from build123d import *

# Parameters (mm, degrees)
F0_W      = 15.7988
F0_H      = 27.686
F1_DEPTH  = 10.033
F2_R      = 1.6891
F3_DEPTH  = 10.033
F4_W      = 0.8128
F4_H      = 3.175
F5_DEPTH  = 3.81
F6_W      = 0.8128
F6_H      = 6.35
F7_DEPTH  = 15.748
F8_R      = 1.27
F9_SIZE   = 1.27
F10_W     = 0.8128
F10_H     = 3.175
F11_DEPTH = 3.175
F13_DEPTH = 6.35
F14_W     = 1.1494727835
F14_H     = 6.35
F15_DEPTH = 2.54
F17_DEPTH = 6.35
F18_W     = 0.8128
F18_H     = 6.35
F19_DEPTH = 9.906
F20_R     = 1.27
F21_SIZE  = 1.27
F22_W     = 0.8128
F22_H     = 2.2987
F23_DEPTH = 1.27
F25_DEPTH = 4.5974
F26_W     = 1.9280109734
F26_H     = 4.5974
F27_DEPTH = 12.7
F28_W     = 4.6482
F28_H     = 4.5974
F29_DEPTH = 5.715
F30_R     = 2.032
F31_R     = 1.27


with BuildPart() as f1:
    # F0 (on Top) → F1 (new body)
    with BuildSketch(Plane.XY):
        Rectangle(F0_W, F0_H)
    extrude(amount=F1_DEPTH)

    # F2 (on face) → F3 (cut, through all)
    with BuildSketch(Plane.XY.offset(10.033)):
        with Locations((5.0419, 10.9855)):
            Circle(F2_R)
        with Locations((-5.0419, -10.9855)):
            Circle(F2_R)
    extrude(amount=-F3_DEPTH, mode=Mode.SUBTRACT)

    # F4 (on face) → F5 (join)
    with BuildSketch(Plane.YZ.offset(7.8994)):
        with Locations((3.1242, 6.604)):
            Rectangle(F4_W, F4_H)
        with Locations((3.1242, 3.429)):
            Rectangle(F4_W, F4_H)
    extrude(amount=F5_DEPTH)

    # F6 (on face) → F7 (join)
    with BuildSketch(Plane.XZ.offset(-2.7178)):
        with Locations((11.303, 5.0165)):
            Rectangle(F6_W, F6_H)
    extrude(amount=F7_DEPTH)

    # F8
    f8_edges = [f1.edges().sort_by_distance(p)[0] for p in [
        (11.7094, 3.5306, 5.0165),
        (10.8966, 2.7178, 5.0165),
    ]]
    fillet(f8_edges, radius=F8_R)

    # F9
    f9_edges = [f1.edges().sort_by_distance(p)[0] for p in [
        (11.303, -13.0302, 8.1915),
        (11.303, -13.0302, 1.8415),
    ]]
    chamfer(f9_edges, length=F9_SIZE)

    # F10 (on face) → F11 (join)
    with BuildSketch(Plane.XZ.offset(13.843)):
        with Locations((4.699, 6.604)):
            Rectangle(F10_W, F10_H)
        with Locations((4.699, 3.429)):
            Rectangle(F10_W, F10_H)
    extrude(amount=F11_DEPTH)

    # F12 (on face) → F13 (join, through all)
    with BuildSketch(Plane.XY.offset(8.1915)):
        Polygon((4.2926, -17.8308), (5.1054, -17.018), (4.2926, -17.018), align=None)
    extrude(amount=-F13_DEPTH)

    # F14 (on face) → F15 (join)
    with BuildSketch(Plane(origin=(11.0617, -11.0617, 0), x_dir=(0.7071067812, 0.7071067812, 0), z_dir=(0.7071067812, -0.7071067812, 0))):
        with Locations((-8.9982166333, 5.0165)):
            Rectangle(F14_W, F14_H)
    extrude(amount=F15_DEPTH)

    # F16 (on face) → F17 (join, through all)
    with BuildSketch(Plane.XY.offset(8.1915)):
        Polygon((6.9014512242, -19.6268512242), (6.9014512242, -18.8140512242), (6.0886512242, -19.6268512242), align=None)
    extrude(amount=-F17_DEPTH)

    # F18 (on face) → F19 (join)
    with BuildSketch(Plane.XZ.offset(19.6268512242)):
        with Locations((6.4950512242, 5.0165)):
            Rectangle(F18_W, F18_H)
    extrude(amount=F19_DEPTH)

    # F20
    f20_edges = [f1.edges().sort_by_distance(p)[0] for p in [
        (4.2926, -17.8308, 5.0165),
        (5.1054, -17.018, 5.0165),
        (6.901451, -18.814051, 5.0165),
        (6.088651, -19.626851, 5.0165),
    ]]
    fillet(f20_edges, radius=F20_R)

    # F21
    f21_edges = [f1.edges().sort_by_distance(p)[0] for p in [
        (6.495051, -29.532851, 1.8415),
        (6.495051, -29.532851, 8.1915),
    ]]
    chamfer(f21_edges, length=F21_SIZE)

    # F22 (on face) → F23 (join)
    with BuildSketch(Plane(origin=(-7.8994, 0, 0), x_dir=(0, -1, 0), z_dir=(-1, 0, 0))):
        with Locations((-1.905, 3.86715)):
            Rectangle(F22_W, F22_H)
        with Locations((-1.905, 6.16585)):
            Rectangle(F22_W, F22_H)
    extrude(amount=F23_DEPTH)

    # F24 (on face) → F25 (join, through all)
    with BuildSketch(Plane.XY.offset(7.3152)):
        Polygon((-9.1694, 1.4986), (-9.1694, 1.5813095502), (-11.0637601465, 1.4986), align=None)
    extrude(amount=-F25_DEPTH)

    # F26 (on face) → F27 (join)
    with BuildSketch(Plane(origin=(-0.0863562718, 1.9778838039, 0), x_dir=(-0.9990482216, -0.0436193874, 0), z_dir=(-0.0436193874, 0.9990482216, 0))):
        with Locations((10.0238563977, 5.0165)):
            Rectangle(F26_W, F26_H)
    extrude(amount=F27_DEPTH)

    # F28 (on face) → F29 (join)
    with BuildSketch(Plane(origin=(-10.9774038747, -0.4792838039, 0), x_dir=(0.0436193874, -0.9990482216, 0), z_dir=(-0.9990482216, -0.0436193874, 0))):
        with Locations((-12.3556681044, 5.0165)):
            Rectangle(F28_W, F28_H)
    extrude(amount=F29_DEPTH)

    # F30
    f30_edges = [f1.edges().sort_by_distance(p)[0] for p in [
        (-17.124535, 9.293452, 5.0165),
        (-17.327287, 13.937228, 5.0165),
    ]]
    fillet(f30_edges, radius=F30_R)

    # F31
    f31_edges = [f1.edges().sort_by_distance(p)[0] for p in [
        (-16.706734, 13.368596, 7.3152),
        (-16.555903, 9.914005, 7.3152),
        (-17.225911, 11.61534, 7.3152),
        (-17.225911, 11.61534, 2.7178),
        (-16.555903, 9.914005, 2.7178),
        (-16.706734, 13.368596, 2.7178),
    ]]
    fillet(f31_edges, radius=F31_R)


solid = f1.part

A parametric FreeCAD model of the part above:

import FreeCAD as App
import Part
import Sketcher
Q = App.Units.Quantity


def edges_at(feature, points):
    """Names of the edges that pass closest to the given points."""
    edges = feature.Shape.Edges
    near = lambda p: min(range(len(edges)), key=lambda i: edges[i].distToShape(Part.Vertex(*p))[0])
    return sorted({f"Edge{near(p) + 1}" for p in points})

doc = App.newDocument("Part")
params = doc.addObject("Spreadsheet::Sheet", "Params")
for row, (alias, value) in enumerate([
    ("sketch1_height", "1.09 in"),
    ("sketch1_width", "0.622 in"),
    ("pad1_length", "0.395 in"),
    ("sketch2_diameter", "0.133 in"),
    ("sketch3_height", "0.25 in"),
    ("sketch3_width", "0.032 in"),
    ("pad2_length", "0.15 in"),
    ("sketch4_height", "0.25 in"),
    ("sketch4_width", "0.032 in"),
    ("pad3_length", "0.62 in"),
    ("fillet_radius", "0.05 in"),
    ("chamfer_size", "0.05 in"),
    ("sketch5_height", "0.25 in"),
    ("sketch5_width", "0.032 in"),
    ("pad4_length", "0.125 in"),
    ("sketch6_width", "0.032 in"),
    ("pad5_length", "0.25 in"),
    ("sketch7_height", "0.25 in"),
    ("pad6_length", "0.1 in"),
    ("sketch8_width", "0.032 in"),
    ("pad7_length", "0.25 in"),
    ("sketch9_height", "0.25 in"),
    ("sketch9_width", "0.032 in"),
    ("pad8_length", "0.39 in"),
    ("fillet2_radius", "0.05 in"),
    ("chamfer2_size", "0.05 in"),
    ("sketch10_width", "0.032 in"),
    ("sketch10_height", "0.181 in"),
    ("pad9_length", "0.05 in"),
    ("pad10_length", "0.181 in"),
    ("sketch12_height", "0.181 in"),
    ("pad11_length", "0.5 in"),
    ("sketch13_width", "0.183 in"),
    ("sketch13_height", "0.181 in"),
    ("pad12_length", "0.225 in"),
    ("fillet3_radius", "0.08 in"),
    ("fillet4_radius", "0.05 in"),
], start=1):
    params.set(f"A{row}", alias)
    params.set(f"B{row}", "=" + value)
    params.setAlias(f"B{row}", alias)

body = doc.addObject("PartDesign::Body", "Body")

sketch1 = body.newObject("Sketcher::SketchObject", "Sketch")
sketch1.AttachmentSupport = (doc.getObject("XY_Plane"), [""])
sketch1.MapMode = "FlatFace"
sketch1.addGeometry([
    Part.LineSegment(App.Vector(-8, 14, 0), App.Vector(-8, -14, 0)),
    Part.LineSegment(App.Vector(-8, -14, 0), App.Vector(8, -14, 0)),
    Part.LineSegment(App.Vector(8, -14, 0), App.Vector(8, 14, 0)),
    Part.LineSegment(App.Vector(8, 14, 0), App.Vector(-8, 14, 0)),
], False)
sketch1.addConstraint([
    Sketcher.Constraint("Coincident", 0, 2, 1, 1),
    Sketcher.Constraint("Coincident", 1, 2, 2, 1),
    Sketcher.Constraint("Coincident", 2, 2, 3, 1),
    Sketcher.Constraint("Coincident", 3, 2, 0, 1),
    Sketcher.Constraint("Vertical", 0),
    Sketcher.Constraint("Horizontal", 1),
    Sketcher.Constraint("Vertical", 2),
    Sketcher.Constraint("Horizontal", 3),
    Sketcher.Constraint("Symmetric", 0, 2, 2, 2, -1, 1),
    Sketcher.Constraint("DistanceY", 0, 2, 0, 1, Q("1.09 in")),
    Sketcher.Constraint("DistanceX", 1, 1, 1, 2, Q("0.622 in")),
])
sketch1.setExpression("Constraints[9]", "Params.sketch1_height")
sketch1.setExpression("Constraints[10]", "Params.sketch1_width")
pad1 = body.newObject("PartDesign::Pad", "Pad")
pad1.Profile = sketch1
pad1.setExpression("Length", "Params.pad1_length")

sketch2 = body.newObject("Sketcher::SketchObject", "Sketch001")
sketch2.AttachmentSupport = (doc.getObject("XY_Plane"), [""])
sketch2.MapMode = "FlatFace"
sketch2.AttachmentOffset = App.Placement(App.Vector(0, 0, 0.395 * 25.4), App.Rotation())
sketch2.addGeometry([
    Part.Circle(App.Vector(5, 11, 0), App.Vector(0, 0, 1), 1.7),
    Part.Circle(App.Vector(-5, -11, 0), App.Vector(0, 0, 1), 1.7),
], False)
sketch2.addConstraint([
    Sketcher.Constraint("Equal", 0, 1),
    Sketcher.Constraint("Symmetric", 0, 3, 1, 3, -1, 1),
    Sketcher.Constraint("Diameter", 0, Q("0.133 in")),
    Sketcher.Constraint("DistanceX", 1, 3, 0, 3, Q("0.397 in")),
    Sketcher.Constraint("DistanceY", 1, 3, 0, 3, Q("0.865 in")),
])
sketch2.setExpression("Constraints[2]", "Params.sketch2_diameter")
pocket1 = body.newObject("PartDesign::Pocket", "Pocket")
pocket1.Profile = sketch2
pocket1.Type = "ThroughAll"

sketch3 = body.newObject("Sketcher::SketchObject", "Sketch002")
sketch3.AttachmentSupport = (doc.getObject("YZ_Plane"), [""])
sketch3.MapMode = "FlatFace"
sketch3.AttachmentOffset = App.Placement(App.Vector(0, 0, 0.311 * 25.4), App.Rotation())
sketch3.addGeometry([
    Part.LineSegment(App.Vector(2.7, 8.2, 0), App.Vector(2.7, 1.8, 0)),
    Part.LineSegment(App.Vector(2.7, 1.8, 0), App.Vector(3.5, 1.8, 0)),
    Part.LineSegment(App.Vector(3.5, 1.8, 0), App.Vector(3.5, 8.2, 0)),
    Part.LineSegment(App.Vector(3.5, 8.2, 0), App.Vector(2.7, 8.2, 0)),
], False)
sketch3.addConstraint([
    Sketcher.Constraint("Coincident", 0, 2, 1, 1),
    Sketcher.Constraint("Coincident", 1, 2, 2, 1),
    Sketcher.Constraint("Coincident", 2, 2, 3, 1),
    Sketcher.Constraint("Coincident", 3, 2, 0, 1),
    Sketcher.Constraint("Vertical", 0),
    Sketcher.Constraint("Horizontal", 1),
    Sketcher.Constraint("Vertical", 2),
    Sketcher.Constraint("Horizontal", 3),
    Sketcher.Constraint("DistanceY", 0, 2, 0, 1, Q("0.25 in")),
    Sketcher.Constraint("DistanceX", 1, 1, 1, 2, Q("0.032 in")),
    Sketcher.Constraint("DistanceX", -1, 1, 0, 2, Q("0.107 in")),
    Sketcher.Constraint("DistanceY", -1, 1, 0, 2, Q("0.0725 in")),
])
sketch3.setExpression("Constraints[8]", "Params.sketch3_height")
sketch3.setExpression("Constraints[9]", "Params.sketch3_width")
pad2 = body.newObject("PartDesign::Pad", "Pad001")
pad2.Profile = sketch3
pad2.setExpression("Length", "Params.pad2_length")

sketch4 = body.newObject("Sketcher::SketchObject", "Sketch003")
sketch4.AttachmentSupport = (doc.getObject("XZ_Plane"), [""])
sketch4.MapMode = "FlatFace"
sketch4.AttachmentOffset = App.Placement(App.Vector(0, 0, -0.107 * 25.4), App.Rotation())
sketch4.addGeometry([
    Part.LineSegment(App.Vector(10.9, 8.2, 0), App.Vector(10.9, 1.8, 0)),
    Part.LineSegment(App.Vector(10.9, 1.8, 0), App.Vector(11.7, 1.8, 0)),
    Part.LineSegment(App.Vector(11.7, 1.8, 0), App.Vector(11.7, 8.2, 0)),
    Part.LineSegment(App.Vector(11.7, 8.2, 0), App.Vector(10.9, 8.2, 0)),
], False)
sketch4.addConstraint([
    Sketcher.Constraint("Coincident", 0, 2, 1, 1),
    Sketcher.Constraint("Coincident", 1, 2, 2, 1),
    Sketcher.Constraint("Coincident", 2, 2, 3, 1),
    Sketcher.Constraint("Coincident", 3, 2, 0, 1),
    Sketcher.Constraint("Vertical", 0),
    Sketcher.Constraint("Horizontal", 1),
    Sketcher.Constraint("Vertical", 2),
    Sketcher.Constraint("Horizontal", 3),
    Sketcher.Constraint("DistanceY", 0, 2, 0, 1, Q("0.25 in")),
    Sketcher.Constraint("DistanceX", 1, 1, 1, 2, Q("0.032 in")),
    Sketcher.Constraint("DistanceX", -1, 1, 0, 2, Q("0.429 in")),
    Sketcher.Constraint("DistanceY", -1, 1, 0, 2, Q("0.0725 in")),
])
sketch4.setExpression("Constraints[8]", "Params.sketch4_height")
sketch4.setExpression("Constraints[9]", "Params.sketch4_width")
pad3 = body.newObject("PartDesign::Pad", "Pad002")
pad3.Profile = sketch4
pad3.setExpression("Length", "Params.pad3_length")
doc.recompute()

fillet = body.newObject("PartDesign::Fillet", "Fillet")
fillet.Base = (pad3, edges_at(pad3, [(11.709, 3.531, 5.016), (10.897, 2.718, 5.016)]))
fillet.setExpression("Radius", "Params.fillet_radius")
doc.recompute()

chamfer = body.newObject("PartDesign::Chamfer", "Chamfer")
chamfer.Base = (fillet, edges_at(fillet, [(11.303, -13.03, 8.191), (11.303, -13.03, 1.841)]))
chamfer.setExpression("Size", "Params.chamfer_size")

sketch5 = body.newObject("Sketcher::SketchObject", "Sketch004")
sketch5.AttachmentSupport = (doc.getObject("XZ_Plane"), [""])
sketch5.MapMode = "FlatFace"
sketch5.AttachmentOffset = App.Placement(App.Vector(0, 0, 0.545 * 25.4), App.Rotation())
sketch5.addGeometry([
    Part.LineSegment(App.Vector(4.3, 8.2, 0), App.Vector(4.3, 1.8, 0)),
    Part.LineSegment(App.Vector(4.3, 1.8, 0), App.Vector(5.1, 1.8, 0)),
    Part.LineSegment(App.Vector(5.1, 1.8, 0), App.Vector(5.1, 8.2, 0)),
    Part.LineSegment(App.Vector(5.1, 8.2, 0), App.Vector(4.3, 8.2, 0)),
], False)
sketch5.addConstraint([
    Sketcher.Constraint("Coincident", 0, 2, 1, 1),
    Sketcher.Constraint("Coincident", 1, 2, 2, 1),
    Sketcher.Constraint("Coincident", 2, 2, 3, 1),
    Sketcher.Constraint("Coincident", 3, 2, 0, 1),
    Sketcher.Constraint("Vertical", 0),
    Sketcher.Constraint("Horizontal", 1),
    Sketcher.Constraint("Vertical", 2),
    Sketcher.Constraint("Horizontal", 3),
    Sketcher.Constraint("DistanceY", 0, 2, 0, 1, Q("0.25 in")),
    Sketcher.Constraint("DistanceX", 1, 1, 1, 2, Q("0.032 in")),
    Sketcher.Constraint("DistanceX", -1, 1, 0, 2, Q("0.169 in")),
    Sketcher.Constraint("DistanceY", -1, 1, 0, 2, Q("0.0725 in")),
])
sketch5.setExpression("Constraints[8]", "Params.sketch5_height")
sketch5.setExpression("Constraints[9]", "Params.sketch5_width")
pad4 = body.newObject("PartDesign::Pad", "Pad003")
pad4.Profile = sketch5
pad4.setExpression("Length", "Params.pad4_length")

sketch6 = body.newObject("Sketcher::SketchObject", "Sketch005")
sketch6.AttachmentSupport = (doc.getObject("XY_Plane"), [""])
sketch6.MapMode = "FlatFace"
sketch6.AttachmentOffset = App.Placement(App.Vector(0, 0, 0.3225 * 25.4), App.Rotation())
sketch6.addGeometry([
    Part.LineSegment(App.Vector(4.3, -17.8, 0), App.Vector(5.1, -17, 0)),
    Part.LineSegment(App.Vector(5.1, -17, 0), App.Vector(4.3, -17, 0)),
    Part.LineSegment(App.Vector(4.3, -17, 0), App.Vector(4.3, -17.8, 0)),
], False)
sketch6.addConstraint([
    Sketcher.Constraint("Coincident", 0, 2, 1, 1),
    Sketcher.Constraint("Coincident", 1, 2, 2, 1),
    Sketcher.Constraint("Coincident", 2, 2, 0, 1),
    Sketcher.Constraint("Horizontal", 1),
    Sketcher.Constraint("Vertical", 2),
    Sketcher.Constraint("Equal", 1, 2),
    Sketcher.Constraint("DistanceX", 1, 2, 1, 1, Q("0.032 in")),
    Sketcher.Constraint("DistanceY", 0, 2, -1, 1, Q("0.67 in")),
    Sketcher.Constraint("DistanceX", -1, 1, 0, 2, Q("0.201 in")),
])
sketch6.setExpression("Constraints[6]", "Params.sketch6_width")
pad5 = body.newObject("PartDesign::Pad", "Pad004")
pad5.Profile = sketch6
pad5.setExpression("Length", "Params.pad5_length")
pad5.Reversed = True

sketch7 = body.newObject("Sketcher::SketchObject", "Sketch006")
sketch7.Placement = App.Placement(App.Vector(11.0617, -11.0617, 0), App.Rotation(App.Vector(0.707106781, 0.707106781, 0), App.Vector(0, 0, 0.999999999), App.Vector(0.707106781, -0.707106781, 0), "ZXY"))
sketch7.addGeometry([
    Part.LineSegment(App.Vector(-9.6, 8.2, 0), App.Vector(-9.6, 1.8, 0)),
    Part.LineSegment(App.Vector(-9.6, 1.8, 0), App.Vector(-8.4, 1.8, 0)),
    Part.LineSegment(App.Vector(-8.4, 1.8, 0), App.Vector(-8.4, 8.2, 0)),
    Part.LineSegment(App.Vector(-8.4, 8.2, 0), App.Vector(-9.6, 8.2, 0)),
], False)
sketch7.addConstraint([
    Sketcher.Constraint("Coincident", 0, 2, 1, 1),
    Sketcher.Constraint("Coincident", 1, 2, 2, 1),
    Sketcher.Constraint("Coincident", 2, 2, 3, 1),
    Sketcher.Constraint("Coincident", 3, 2, 0, 1),
    Sketcher.Constraint("Vertical", 0),
    Sketcher.Constraint("Horizontal", 1),
    Sketcher.Constraint("Vertical", 2),
    Sketcher.Constraint("Horizontal", 3),
    Sketcher.Constraint("DistanceY", 0, 2, 0, 1, Q("0.25 in")),
    Sketcher.Constraint("DistanceY", -1, 1, 0, 2, Q("0.0725 in")),
    Sketcher.Constraint("DistanceX", 1, 1, 1, 2, Q("1.149473 mm")),
    Sketcher.Constraint("DistanceX", 1, 2, -1, 1, Q("8.42348 mm")),
])
sketch7.setExpression("Constraints[8]", "Params.sketch7_height")
pad6 = body.newObject("PartDesign::Pad", "Pad005")
pad6.Profile = sketch7
pad6.setExpression("Length", "Params.pad6_length")

sketch8 = body.newObject("Sketcher::SketchObject", "Sketch007")
sketch8.AttachmentSupport = (doc.getObject("XY_Plane"), [""])
sketch8.MapMode = "FlatFace"
sketch8.AttachmentOffset = App.Placement(App.Vector(0, 0, 0.3225 * 25.4), App.Rotation())
sketch8.addGeometry([
    Part.LineSegment(App.Vector(6.9, -19.6, 0), App.Vector(6.9, -18.8, 0)),
    Part.LineSegment(App.Vector(6.9, -18.8, 0), App.Vector(6.1, -19.6, 0)),
    Part.LineSegment(App.Vector(6.1, -19.6, 0), App.Vector(6.9, -19.6, 0)),
], False)
sketch8.addConstraint([
    Sketcher.Constraint("Coincident", 0, 2, 1, 1),
    Sketcher.Constraint("Coincident", 1, 2, 2, 1),
    Sketcher.Constraint("Coincident", 2, 2, 0, 1),
    Sketcher.Constraint("Vertical", 0),
    Sketcher.Constraint("Horizontal", 2),
    Sketcher.Constraint("Equal", 2, 0),
    Sketcher.Constraint("DistanceX", 2, 1, 2, 2, Q("0.032 in")),
    Sketcher.Constraint("DistanceX", -1, 1, 0, 2, Q("6.901451 mm")),
    Sketcher.Constraint("DistanceY", 0, 2, -1, 1, Q("18.814051 mm")),
])
sketch8.setExpression("Constraints[6]", "Params.sketch8_width")
pad7 = body.newObject("PartDesign::Pad", "Pad006")
pad7.Profile = sketch8
pad7.setExpression("Length", "Params.pad7_length")
pad7.Reversed = True

sketch9 = body.newObject("Sketcher::SketchObject", "Sketch008")
sketch9.AttachmentSupport = (doc.getObject("XZ_Plane"), [""])
sketch9.MapMode = "FlatFace"
sketch9.AttachmentOffset = App.Placement(App.Vector(0, 0, 19.626851), App.Rotation())
sketch9.addGeometry([
    Part.LineSegment(App.Vector(6.1, 8.2, 0), App.Vector(6.1, 1.8, 0)),
    Part.LineSegment(App.Vector(6.1, 1.8, 0), App.Vector(6.9, 1.8, 0)),
    Part.LineSegment(App.Vector(6.9, 1.8, 0), App.Vector(6.9, 8.2, 0)),
    Part.LineSegment(App.Vector(6.9, 8.2, 0), App.Vector(6.1, 8.2, 0)),
], False)
sketch9.addConstraint([
    Sketcher.Constraint("Coincident", 0, 2, 1, 1),
    Sketcher.Constraint("Coincident", 1, 2, 2, 1),
    Sketcher.Constraint("Coincident", 2, 2, 3, 1),
    Sketcher.Constraint("Coincident", 3, 2, 0, 1),
    Sketcher.Constraint("Vertical", 0),
    Sketcher.Constraint("Horizontal", 1),
    Sketcher.Constraint("Vertical", 2),
    Sketcher.Constraint("Horizontal", 3),
    Sketcher.Constraint("DistanceY", 0, 2, 0, 1, Q("0.25 in")),
    Sketcher.Constraint("DistanceX", 1, 1, 1, 2, Q("0.032 in")),
    Sketcher.Constraint("DistanceY", -1, 1, 0, 2, Q("0.0725 in")),
    Sketcher.Constraint("DistanceX", -1, 1, 0, 2, Q("6.088651 mm")),
])
sketch9.setExpression("Constraints[8]", "Params.sketch9_height")
sketch9.setExpression("Constraints[9]", "Params.sketch9_width")
pad8 = body.newObject("PartDesign::Pad", "Pad007")
pad8.Profile = sketch9
pad8.setExpression("Length", "Params.pad8_length")
doc.recompute()

fillet2 = body.newObject("PartDesign::Fillet", "Fillet001")
fillet2.Base = (pad8, edges_at(pad8, [
    (4.293, -17.831, 5.016),
    (5.105, -17.018, 5.016),
    (6.901, -18.814, 5.016),
    (6.089, -19.627, 5.016),
]))
fillet2.setExpression("Radius", "Params.fillet2_radius")
doc.recompute()

chamfer2 = body.newObject("PartDesign::Chamfer", "Chamfer001")
chamfer2.Base = (fillet2, edges_at(fillet2, [(6.495, -29.533, 1.841), (6.495, -29.533, 8.191)]))
chamfer2.setExpression("Size", "Params.chamfer2_size")

sketch10 = body.newObject("Sketcher::SketchObject", "Sketch009")
sketch10.AttachmentSupport = (doc.getObject("YZ_Plane"), [""])
sketch10.MapMode = "FlatFace"
sketch10.AttachmentOffset = App.Placement(App.Vector(0, 0, -0.311 * 25.4), App.Rotation())
sketch10.addGeometry([
    Part.LineSegment(App.Vector(2.3, 2.7, 0), App.Vector(1.5, 2.7, 0)),
    Part.LineSegment(App.Vector(1.5, 2.7, 0), App.Vector(1.5, 7.3, 0)),
    Part.LineSegment(App.Vector(1.5, 7.3, 0), App.Vector(2.3, 7.3, 0)),
    Part.LineSegment(App.Vector(2.3, 7.3, 0), App.Vector(2.3, 2.7, 0)),
], False)
sketch10.addConstraint([
    Sketcher.Constraint("Coincident", 0, 2, 1, 1),
    Sketcher.Constraint("Coincident", 1, 2, 2, 1),
    Sketcher.Constraint("Coincident", 2, 2, 3, 1),
    Sketcher.Constraint("Coincident", 3, 2, 0, 1),
    Sketcher.Constraint("Horizontal", 0),
    Sketcher.Constraint("Vertical", 1),
    Sketcher.Constraint("Horizontal", 2),
    Sketcher.Constraint("Vertical", 3),
    Sketcher.Constraint("DistanceX", 0, 2, 0, 1, Q("0.032 in")),
    Sketcher.Constraint("DistanceY", 1, 1, 1, 2, Q("0.181 in")),
    Sketcher.Constraint("DistanceX", -1, 1, 0, 2, Q("0.059 in")),
    Sketcher.Constraint("DistanceY", -1, 1, 0, 2, Q("0.107 in")),
])
sketch10.setExpression("Constraints[8]", "Params.sketch10_width")
sketch10.setExpression("Constraints[9]", "Params.sketch10_height")
pad9 = body.newObject("PartDesign::Pad", "Pad008")
pad9.Profile = sketch10
pad9.setExpression("Length", "Params.pad9_length")
pad9.Reversed = True

sketch11 = body.newObject("Sketcher::SketchObject", "Sketch010")
sketch11.AttachmentSupport = (doc.getObject("XY_Plane"), [""])
sketch11.MapMode = "FlatFace"
sketch11.AttachmentOffset = App.Placement(App.Vector(0, 0, 0.288 * 25.4), App.Rotation())
sketch11.addGeometry([
    Part.LineSegment(App.Vector(-9.17, 1.5, 0), App.Vector(-9.17, 1.58, 0)),
    Part.LineSegment(App.Vector(-9.17, 1.58, 0), App.Vector(-11.06, 1.5, 0)),
    Part.LineSegment(App.Vector(-11.06, 1.5, 0), App.Vector(-9.17, 1.5, 0)),
], False)
sketch11.addConstraint([
    Sketcher.Constraint("Coincident", 0, 2, 1, 1),
    Sketcher.Constraint("Coincident", 1, 2, 2, 1),
    Sketcher.Constraint("Coincident", 2, 2, 0, 1),
    Sketcher.Constraint("Vertical", 0),
    Sketcher.Constraint("Horizontal", 2),
    Sketcher.Constraint("Angle", 1, Q("-177.5 deg")),
    Sketcher.Constraint("DistanceX", 0, 2, -1, 1, Q("0.361 in")),
    Sketcher.Constraint("DistanceY", -1, 1, 1, 2, Q("0.059 in")),
    Sketcher.Constraint("DistanceX", 2, 1, 2, 2, Q("1.89436 mm")),
])
pad10 = body.newObject("PartDesign::Pad", "Pad009")
pad10.Profile = sketch11
pad10.setExpression("Length", "Params.pad10_length")
pad10.Reversed = True

sketch12 = body.newObject("Sketcher::SketchObject", "Sketch011")
sketch12.Placement = App.Placement(App.Vector(-0.086356, 1.977884, 0), App.Rotation(App.Vector(-0.999048222, -0.043619387, 0), App.Vector(0, 0, 1.000000001), App.Vector(-0.043619387, 0.999048222, 0), "ZXY"))
sketch12.addGeometry([
    Part.LineSegment(App.Vector(9.1, 7.3, 0), App.Vector(9.1, 2.7, 0)),
    Part.LineSegment(App.Vector(9.1, 2.7, 0), App.Vector(11, 2.7, 0)),
    Part.LineSegment(App.Vector(11, 2.7, 0), App.Vector(11, 7.3, 0)),
    Part.LineSegment(App.Vector(11, 7.3, 0), App.Vector(9.1, 7.3, 0)),
], False)
sketch12.addConstraint([
    Sketcher.Constraint("Coincident", 0, 2, 1, 1),
    Sketcher.Constraint("Coincident", 1, 2, 2, 1),
    Sketcher.Constraint("Coincident", 2, 2, 3, 1),
    Sketcher.Constraint("Coincident", 3, 2, 0, 1),
    Sketcher.Constraint("Vertical", 0),
    Sketcher.Constraint("Horizontal", 1),
    Sketcher.Constraint("Vertical", 2),
    Sketcher.Constraint("Horizontal", 3),
    Sketcher.Constraint("DistanceY", 0, 2, 0, 1, Q("0.181 in")),
    Sketcher.Constraint("DistanceY", -1, 1, 0, 2, Q("0.107 in")),
    Sketcher.Constraint("DistanceX", 1, 1, 1, 2, Q("1.928011 mm")),
    Sketcher.Constraint("DistanceX", -1, 1, 0, 2, Q("9.059851 mm")),
])
sketch12.setExpression("Constraints[8]", "Params.sketch12_height")
pad11 = body.newObject("PartDesign::Pad", "Pad010")
pad11.Profile = sketch12
pad11.setExpression("Length", "Params.pad11_length")

sketch13 = body.newObject("Sketcher::SketchObject", "Sketch012")
sketch13.Placement = App.Placement(App.Vector(-10.977404, -0.479284, 0), App.Rotation(App.Vector(0.043619387, -0.999048222, 0), App.Vector(0, 0, 1.000000001), App.Vector(-0.999048222, -0.043619387, 0), "ZXY"))
sketch13.addGeometry([
    Part.LineSegment(App.Vector(-14.7, 7.3, 0), App.Vector(-14.7, 2.7, 0)),
    Part.LineSegment(App.Vector(-14.7, 2.7, 0), App.Vector(-10, 2.7, 0)),
    Part.LineSegment(App.Vector(-10, 2.7, 0), App.Vector(-10, 7.3, 0)),
    Part.LineSegment(App.Vector(-10, 7.3, 0), App.Vector(-14.7, 7.3, 0)),
], False)
sketch13.addConstraint([
    Sketcher.Constraint("Coincident", 0, 2, 1, 1),
    Sketcher.Constraint("Coincident", 1, 2, 2, 1),
    Sketcher.Constraint("Coincident", 2, 2, 3, 1),
    Sketcher.Constraint("Coincident", 3, 2, 0, 1),
    Sketcher.Constraint("Vertical", 0),
    Sketcher.Constraint("Horizontal", 1),
    Sketcher.Constraint("Vertical", 2),
    Sketcher.Constraint("Horizontal", 3),
    Sketcher.Constraint("DistanceX", 1, 1, 1, 2, Q("0.183 in")),
    Sketcher.Constraint("DistanceY", 0, 2, 0, 1, Q("0.181 in")),
    Sketcher.Constraint("DistanceY", -1, 1, 0, 2, Q("0.107 in")),
    Sketcher.Constraint("DistanceX", 0, 2, -1, 1, Q("14.679768 mm")),
])
sketch13.setExpression("Constraints[8]", "Params.sketch13_width")
sketch13.setExpression("Constraints[9]", "Params.sketch13_height")
pad12 = body.newObject("PartDesign::Pad", "Pad011")
pad12.Profile = sketch13
pad12.setExpression("Length", "Params.pad12_length")
doc.recompute()

fillet3 = body.newObject("PartDesign::Fillet", "Fillet002")
fillet3.Base = (pad12, edges_at(pad12, [(-17.125, 9.293, 5.016), (-17.327, 13.937, 5.016)]))
fillet3.setExpression("Radius", "Params.fillet3_radius")
doc.recompute()

fillet4 = body.newObject("PartDesign::Fillet", "Fillet003")
fillet4.Base = (fillet3, edges_at(fillet3, [
    (-16.707, 13.369, 7.315),
    (-16.556, 9.914, 7.315),
    (-17.226, 11.615, 7.315),
    (-17.226, 11.615, 2.718),
    (-16.556, 9.914, 2.718),
    (-16.707, 13.369, 2.718),
]))
fillet4.setExpression("Radius", "Params.fillet4_radius")

doc.recompute()
